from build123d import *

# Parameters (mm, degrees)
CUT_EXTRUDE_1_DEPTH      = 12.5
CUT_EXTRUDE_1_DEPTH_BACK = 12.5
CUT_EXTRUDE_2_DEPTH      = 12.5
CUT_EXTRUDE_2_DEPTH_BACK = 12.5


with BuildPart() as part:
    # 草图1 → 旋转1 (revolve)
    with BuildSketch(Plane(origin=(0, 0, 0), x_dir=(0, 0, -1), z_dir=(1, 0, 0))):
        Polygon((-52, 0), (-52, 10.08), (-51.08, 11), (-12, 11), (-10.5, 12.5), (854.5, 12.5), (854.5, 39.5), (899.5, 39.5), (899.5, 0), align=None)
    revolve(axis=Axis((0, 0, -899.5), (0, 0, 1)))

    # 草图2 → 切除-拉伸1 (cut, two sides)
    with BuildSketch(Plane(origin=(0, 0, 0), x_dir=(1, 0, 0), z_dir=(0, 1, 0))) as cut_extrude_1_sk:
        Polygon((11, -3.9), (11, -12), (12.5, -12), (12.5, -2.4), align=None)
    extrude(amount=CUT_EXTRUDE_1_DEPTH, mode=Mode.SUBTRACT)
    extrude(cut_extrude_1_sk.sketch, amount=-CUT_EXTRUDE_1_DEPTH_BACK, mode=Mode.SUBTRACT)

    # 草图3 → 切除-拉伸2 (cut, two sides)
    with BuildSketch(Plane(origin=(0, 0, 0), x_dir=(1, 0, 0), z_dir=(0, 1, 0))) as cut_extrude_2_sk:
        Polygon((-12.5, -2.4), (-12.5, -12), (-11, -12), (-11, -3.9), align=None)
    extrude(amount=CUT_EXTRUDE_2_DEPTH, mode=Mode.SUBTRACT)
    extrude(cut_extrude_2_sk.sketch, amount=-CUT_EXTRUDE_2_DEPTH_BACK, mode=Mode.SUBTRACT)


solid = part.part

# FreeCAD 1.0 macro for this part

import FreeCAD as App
import Part
import Sketcher

V = App.Vector
Q = App.Units.Quantity

doc = App.newDocument("Part")
body = doc.addObject("PartDesign::Body", "Body")

# Sketch on YZ plane
sketch1 = body.newObject("Sketcher::SketchObject", "Sketch")
sketch1.AttachmentSupport = (doc.getObject("YZ_Plane"), [""])
sketch1.MapMode = "FlatFace"
sketch1.addGeometry([
    Part.LineSegment(V(10.1, 52, 0), V(0, 52, 0)),  # 0
    Part.LineSegment(V(0, 52, 0), V(0, -899.5, 0)),  # 1
    Part.LineSegment(V(0, -899.5, 0), V(39.5, -899.5, 0)),  # 2
    Part.LineSegment(V(39.5, -899.5, 0), V(39.5, -854.5, 0)),  # 3
    Part.LineSegment(V(39.5, -854.5, 0), V(12.5, -854.5, 0)),  # 4
    Part.LineSegment(V(12.5, -854.5, 0), V(12.5, 10.5, 0)),  # 5
    Part.LineSegment(V(12.5, 10.5, 0), V(11, 12, 0)),  # 6
    Part.LineSegment(V(11, 12, 0), V(11, 51.1, 0)),  # 7
    Part.LineSegment(V(11, 51.1, 0), V(10.1, 52, 0)),  # 8
], False)
sketch1.addConstraint([
    Sketcher.Constraint("Coincident", 0, 2, 1, 1),
    Sketcher.Constraint("Coincident", 1, 2, 2, 1),
    Sketcher.Constraint("Coincident", 2, 2, 3, 1),
    Sketcher.Constraint("Coincident", 3, 2, 4, 1),
    Sketcher.Constraint("Coincident", 4, 2, 5, 1),
    Sketcher.Constraint("Coincident", 5, 2, 6, 1),
    Sketcher.Constraint("Coincident", 6, 2, 7, 1),
    Sketcher.Constraint("Coincident", 7, 2, 8, 1),
    Sketcher.Constraint("Coincident", 8, 2, 0, 1),
    Sketcher.Constraint("Horizontal", 0),
    Sketcher.Constraint("Vertical", 1),
    Sketcher.Constraint("Horizontal", 2),
    Sketcher.Constraint("Vertical", 3),
    Sketcher.Constraint("Horizontal", 4),
    Sketcher.Constraint("Vertical", 5),
    Sketcher.Constraint("Vertical", 7),
    Sketcher.Constraint("PointOnObject", 0, 2, -2),
    Sketcher.Constraint("Parallel", 6, 8),
    Sketcher.Constraint("DistanceX", 4, 2, 4, 1, Q("27 mm")),
    Sketcher.Constraint("DistanceY", 3, 1, 3, 2, Q("45 mm")),
    Sketcher.Constraint("DistanceY", 5, 1, 5, 2, Q("865 mm")),
    Sketcher.Constraint("Angle", 6, Q("135 deg")),
    Sketcher.Constraint("DistanceX", 2, 1, 2, 2, Q("39.5 mm")),
    Sketcher.Constraint("DistanceY", 1, 2, 1, 1, Q("951.5 mm")),
    Sketcher.Constraint("DistanceY", -1, 1, 0, 2, Q("52 mm")),
    Sketcher.Constraint("DistanceX", -1, 1, 6, 2, Q("11 mm")),
    Sketcher.Constraint("DistanceX", 0, 2, 0, 1, Q("10.08 mm")),
])
revolution = body.newObject("PartDesign::Revolution", "Revolution")
revolution.Profile = sketch1
revolution.ReferenceAxis = (sketch1, ["V_Axis"])
revolution.Angle = 360

# Sketch on XZ plane
sketch2 = body.newObject("Sketcher::SketchObject", "Sketch001")
sketch2.AttachmentSupport = (doc.getObject("XZ_Plane"), [""])
sketch2.MapMode = "FlatFace"
sketch2.addGeometry([
    Part.LineSegment(V(11, 3.9, 0), V(11, 12, 0)),
    Part.LineSegment(V(11, 12, 0), V(12.5, 12, 0)),
    Part.LineSegment(V(12.5, 12, 0), V(12.5, 2.4, 0)),
    Part.LineSegment(V(12.5, 2.4, 0), V(11, 3.9, 0)),
], False)
sketch2.addConstraint([
    Sketcher.Constraint("Coincident", 0, 2, 1, 1),
    Sketcher.Constraint("Coincident", 1, 2, 2, 1),
    Sketcher.Constraint("Coincident", 2, 2, 3, 1),
    Sketcher.Constraint("Coincident", 3, 2, 0, 1),
    Sketcher.Constraint("Vertical", 0),
    Sketcher.Constraint("Horizontal", 1),
    Sketcher.Constraint("Vertical", 2),
    Sketcher.Constraint("Angle", 3, Q("135 deg")),
    Sketcher.Constraint("DistanceX", 1, 1, 1, 2, Q("1.5 mm")),
    Sketcher.Constraint("DistanceY", 0, 1, 0, 2, Q("8.1 mm")),
    Sketcher.Constraint("DistanceX", -1, 1, 0, 2, Q("11 mm")),
    Sketcher.Constraint("DistanceY", -1, 1, 0, 2, Q("12 mm")),
])
pocket1 = body.newObject("PartDesign::Pocket", "Pocket")
pocket1.Profile = sketch2
pocket1.Type = "ThroughAll"
pocket1.Midplane = True

# Sketch on XZ plane
sketch3 = body.newObject("Sketcher::SketchObject", "Sketch002")
sketch3.AttachmentSupport = (doc.getObject("XZ_Plane"), [""])
sketch3.MapMode = "FlatFace"
sketch3.addGeometry([
    Part.LineSegment(V(-12.5, 2.4, 0), V(-12.5, 12, 0)),
    Part.LineSegment(V(-12.5, 12, 0), V(-11, 12, 0)),
    Part.LineSegment(V(-11, 12, 0), V(-11, 3.9, 0)),
    Part.LineSegment(V(-11, 3.9, 0), V(-12.5, 2.4, 0)),
], False)
sketch3.addConstraint([
    Sketcher.Constraint("Coincident", 0, 2, 1, 1),
    Sketcher.Constraint("Coincident", 1, 2, 2, 1),
    Sketcher.Constraint("Coincident", 2, 2, 3, 1),
    Sketcher.Constraint("Coincident", 3, 2, 0, 1),
    Sketcher.Constraint("Vertical", 0),
    Sketcher.Constraint("Horizontal", 1),
    Sketcher.Constraint("Vertical", 2),
    Sketcher.Constraint("Angle", 3, Q("-135 deg")),
    Sketcher.Constraint("DistanceX", 1, 1, 1, 2, Q("1.5 mm")),
    Sketcher.Constraint("DistanceY", 0, 1, 0, 2, Q("9.6 mm")),
    Sketcher.Constraint("DistanceY", -1, 1, 0, 2, Q("12 mm")),
    Sketcher.Constraint("DistanceX", 1, 2, -1, 1, Q("11 mm")),
])
pocket2 = body.newObject("PartDesign::Pocket", "Pocket001")
pocket2.Profile = sketch3
pocket2.Type = "ThroughAll"
pocket2.Midplane = True

doc.recompute()
